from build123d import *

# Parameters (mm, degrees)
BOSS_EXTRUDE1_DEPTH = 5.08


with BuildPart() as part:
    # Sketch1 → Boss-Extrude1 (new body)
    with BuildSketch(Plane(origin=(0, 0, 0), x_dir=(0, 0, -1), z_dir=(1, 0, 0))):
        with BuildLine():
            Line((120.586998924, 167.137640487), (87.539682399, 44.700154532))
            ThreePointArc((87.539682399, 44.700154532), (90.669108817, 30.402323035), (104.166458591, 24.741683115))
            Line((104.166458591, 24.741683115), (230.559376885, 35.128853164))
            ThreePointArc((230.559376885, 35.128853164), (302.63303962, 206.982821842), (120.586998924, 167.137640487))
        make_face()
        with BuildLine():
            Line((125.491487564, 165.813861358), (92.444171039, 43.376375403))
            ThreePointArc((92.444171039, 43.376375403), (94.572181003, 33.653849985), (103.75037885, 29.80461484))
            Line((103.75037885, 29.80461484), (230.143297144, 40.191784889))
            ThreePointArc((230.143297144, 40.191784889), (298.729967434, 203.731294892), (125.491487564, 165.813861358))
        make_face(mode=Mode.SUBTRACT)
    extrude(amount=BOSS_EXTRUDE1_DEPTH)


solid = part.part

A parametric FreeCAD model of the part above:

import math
import FreeCAD as App
import Part
import Sketcher
Q = App.Units.Quantity

doc = App.newDocument("Part")
body = doc.addObject("PartDesign::Body", "Body")

# Sketch on YZ plane
sketch1 = body.newObject("Sketcher::SketchObject", "Sketch")
sketch1.AttachmentSupport = (doc.getObject("YZ_Plane"), [""])
sketch1.MapMode = "FlatFace"
sketch1.addGeometry([
    Part.LineSegment(App.Vector(167.13764, -120.586999, 0), App.Vector(44.700155, -87.539682, 0)),  # 0
    Part.ArcOfCircle(Part.Circle(App.Vector(40.563345, -102.866209, 0), App.Vector(0, 0, 1), 15.875), math.radians(74.895138), math.radians(184.6981)),  # 1
    Part.LineSegment(App.Vector(24.741683, -104.166459, 0), App.Vector(35.128853, -230.559377, 0)),  # 2
    Part.ArcOfCircle(Part.Circle(App.Vector(139.776064, -221.959303, 0), App.Vector(0, 0, 1), 105), math.radians(-175.3019), math.radians(74.895138)),  # 3
    Part.LineSegment(App.Vector(43.376375, -92.444171, 0), App.Vector(165.813861, -125.491488, 0)),  # 4
    Part.ArcOfCircle(Part.Circle(App.Vector(139.776064, -221.959303, 0), App.Vector(0, 0, 1), 99.92), math.radians(-175.3019), math.radians(74.895138)),  # 5
    Part.LineSegment(App.Vector(40.191785, -230.143297, 0), App.Vector(29.804615, -103.750379, 0)),  # 6
    Part.ArcOfCircle(Part.Circle(App.Vector(40.563345, -102.866209, 0), App.Vector(0, 0, 1), 10.795), math.radians(74.895138), math.radians(184.6981)),  # 7
], False)
sketch1.addConstraint([
    Sketcher.Constraint("Coincident", 0, 2, 1, 1),
    Sketcher.Constraint("Coincident", 1, 2, 2, 1),
    Sketcher.Constraint("Coincident", 2, 2, 3, 1),
    Sketcher.Constraint("Coincident", 3, 2, 0, 1),
    Sketcher.Constraint("Coincident", 4, 2, 5, 2),
    Sketcher.Constraint("Coincident", 5, 1, 6, 1),
    Sketcher.Constraint("Coincident", 6, 2, 7, 2),
    Sketcher.Constraint("Coincident", 7, 1, 4, 1),
    Sketcher.Constraint("Coincident", 5, 3, 3, 3),
    Sketcher.Constraint("Coincident", 7, 3, 1, 3),
    Sketcher.Constraint("Radius", 1, Q("0.625 in")),
    Sketcher.Constraint("Radius", 7, Q("0.425 in")),
    Sketcher.Constraint("Radius", 3, 105.0),
    Sketcher.Constraint("Radius", 5, 99.92),
    Sketcher.Constraint("DistanceX", 1, 2, 7, 3, Q("0.6229001 in")),
    Sketcher.Constraint("DistanceY", 3, 2, -1, 1, 120.586999),
    Sketcher.Constraint("DistanceX", 1, 2, 5, 1, 15.450102),
    Sketcher.Constraint("DistanceY", 1, 3, -1, 1, 102.866209),
    Sketcher.Constraint("DistanceX", -1, 1, 3, 2, 167.13764),
    Sketcher.Constraint("DistanceX", -1, 1, 4, 2, 165.813861),
    Sketcher.Constraint("DistanceY", 6, 2, -1, 1, 103.750379),
    Sketcher.Constraint("DistanceY", 7, 1, -1, 1, 92.444171),
    Sketcher.Constraint("DistanceX", 1, 3, 3, 3, 99.212719),
    Sketcher.Constraint("DistanceX", 7, 3, 0, 2, 4.13681),
    Sketcher.Constraint("DistanceY", 3, 3, 0, 2, 134.419621),
    Sketcher.Constraint("DistanceX", 2, 2, 3, 3, 104.647211),
])
pad1 = body.newObject("PartDesign::Pad", "Pad")
pad1.Profile = sketch1
pad1.Length = Q("0.2 in")

doc.recompute()
